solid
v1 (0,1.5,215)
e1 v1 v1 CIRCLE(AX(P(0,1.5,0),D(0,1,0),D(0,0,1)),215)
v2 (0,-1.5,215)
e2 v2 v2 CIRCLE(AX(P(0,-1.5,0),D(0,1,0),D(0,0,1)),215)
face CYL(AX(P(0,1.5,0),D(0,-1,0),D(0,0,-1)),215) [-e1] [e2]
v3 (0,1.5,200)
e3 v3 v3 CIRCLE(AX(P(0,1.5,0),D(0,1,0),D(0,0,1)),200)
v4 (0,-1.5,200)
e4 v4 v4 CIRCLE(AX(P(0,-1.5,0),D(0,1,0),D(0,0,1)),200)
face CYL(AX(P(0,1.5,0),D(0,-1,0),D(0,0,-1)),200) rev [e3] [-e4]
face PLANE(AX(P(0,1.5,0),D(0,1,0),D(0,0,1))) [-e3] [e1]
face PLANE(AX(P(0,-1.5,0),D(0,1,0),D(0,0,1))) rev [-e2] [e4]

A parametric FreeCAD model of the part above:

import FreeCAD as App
import Part
import Sketcher

doc = App.newDocument("Part")
body = doc.addObject("PartDesign::Body", "Body")

sketch1 = doc.addObject("Sketcher::SketchObject", "Sketch")
body.addObject(sketch1)
sketch1.AttachmentSupport = (doc.XZ_Plane, [""])
sketch1.MapMode = "FlatFace"
sketch1.addGeometry(Part.Circle(App.Vector(0, 0, 0), App.Vector(0, 0, 1), 215), False)
sketch1.addGeometry(Part.Circle(App.Vector(0, 0, 0), App.Vector(0, 0, 1), 200), False)
sketch1.addConstraint(Sketcher.Constraint("Coincident", 0, 3, -1, 1))
sketch1.addConstraint(Sketcher.Constraint("Coincident", 1, 3, -1, 1))
sketch1.addConstraint(Sketcher.Constraint("Diameter", 0, 430.0))
sketch1.addConstraint(Sketcher.Constraint("Diameter", 1, 400.0))
pad1 = doc.addObject("PartDesign::Pad", "Pad")
body.addObject(pad1)
pad1.Profile = sketch1
pad1.Length = 3
pad1.Midplane = True

doc.recompute()
